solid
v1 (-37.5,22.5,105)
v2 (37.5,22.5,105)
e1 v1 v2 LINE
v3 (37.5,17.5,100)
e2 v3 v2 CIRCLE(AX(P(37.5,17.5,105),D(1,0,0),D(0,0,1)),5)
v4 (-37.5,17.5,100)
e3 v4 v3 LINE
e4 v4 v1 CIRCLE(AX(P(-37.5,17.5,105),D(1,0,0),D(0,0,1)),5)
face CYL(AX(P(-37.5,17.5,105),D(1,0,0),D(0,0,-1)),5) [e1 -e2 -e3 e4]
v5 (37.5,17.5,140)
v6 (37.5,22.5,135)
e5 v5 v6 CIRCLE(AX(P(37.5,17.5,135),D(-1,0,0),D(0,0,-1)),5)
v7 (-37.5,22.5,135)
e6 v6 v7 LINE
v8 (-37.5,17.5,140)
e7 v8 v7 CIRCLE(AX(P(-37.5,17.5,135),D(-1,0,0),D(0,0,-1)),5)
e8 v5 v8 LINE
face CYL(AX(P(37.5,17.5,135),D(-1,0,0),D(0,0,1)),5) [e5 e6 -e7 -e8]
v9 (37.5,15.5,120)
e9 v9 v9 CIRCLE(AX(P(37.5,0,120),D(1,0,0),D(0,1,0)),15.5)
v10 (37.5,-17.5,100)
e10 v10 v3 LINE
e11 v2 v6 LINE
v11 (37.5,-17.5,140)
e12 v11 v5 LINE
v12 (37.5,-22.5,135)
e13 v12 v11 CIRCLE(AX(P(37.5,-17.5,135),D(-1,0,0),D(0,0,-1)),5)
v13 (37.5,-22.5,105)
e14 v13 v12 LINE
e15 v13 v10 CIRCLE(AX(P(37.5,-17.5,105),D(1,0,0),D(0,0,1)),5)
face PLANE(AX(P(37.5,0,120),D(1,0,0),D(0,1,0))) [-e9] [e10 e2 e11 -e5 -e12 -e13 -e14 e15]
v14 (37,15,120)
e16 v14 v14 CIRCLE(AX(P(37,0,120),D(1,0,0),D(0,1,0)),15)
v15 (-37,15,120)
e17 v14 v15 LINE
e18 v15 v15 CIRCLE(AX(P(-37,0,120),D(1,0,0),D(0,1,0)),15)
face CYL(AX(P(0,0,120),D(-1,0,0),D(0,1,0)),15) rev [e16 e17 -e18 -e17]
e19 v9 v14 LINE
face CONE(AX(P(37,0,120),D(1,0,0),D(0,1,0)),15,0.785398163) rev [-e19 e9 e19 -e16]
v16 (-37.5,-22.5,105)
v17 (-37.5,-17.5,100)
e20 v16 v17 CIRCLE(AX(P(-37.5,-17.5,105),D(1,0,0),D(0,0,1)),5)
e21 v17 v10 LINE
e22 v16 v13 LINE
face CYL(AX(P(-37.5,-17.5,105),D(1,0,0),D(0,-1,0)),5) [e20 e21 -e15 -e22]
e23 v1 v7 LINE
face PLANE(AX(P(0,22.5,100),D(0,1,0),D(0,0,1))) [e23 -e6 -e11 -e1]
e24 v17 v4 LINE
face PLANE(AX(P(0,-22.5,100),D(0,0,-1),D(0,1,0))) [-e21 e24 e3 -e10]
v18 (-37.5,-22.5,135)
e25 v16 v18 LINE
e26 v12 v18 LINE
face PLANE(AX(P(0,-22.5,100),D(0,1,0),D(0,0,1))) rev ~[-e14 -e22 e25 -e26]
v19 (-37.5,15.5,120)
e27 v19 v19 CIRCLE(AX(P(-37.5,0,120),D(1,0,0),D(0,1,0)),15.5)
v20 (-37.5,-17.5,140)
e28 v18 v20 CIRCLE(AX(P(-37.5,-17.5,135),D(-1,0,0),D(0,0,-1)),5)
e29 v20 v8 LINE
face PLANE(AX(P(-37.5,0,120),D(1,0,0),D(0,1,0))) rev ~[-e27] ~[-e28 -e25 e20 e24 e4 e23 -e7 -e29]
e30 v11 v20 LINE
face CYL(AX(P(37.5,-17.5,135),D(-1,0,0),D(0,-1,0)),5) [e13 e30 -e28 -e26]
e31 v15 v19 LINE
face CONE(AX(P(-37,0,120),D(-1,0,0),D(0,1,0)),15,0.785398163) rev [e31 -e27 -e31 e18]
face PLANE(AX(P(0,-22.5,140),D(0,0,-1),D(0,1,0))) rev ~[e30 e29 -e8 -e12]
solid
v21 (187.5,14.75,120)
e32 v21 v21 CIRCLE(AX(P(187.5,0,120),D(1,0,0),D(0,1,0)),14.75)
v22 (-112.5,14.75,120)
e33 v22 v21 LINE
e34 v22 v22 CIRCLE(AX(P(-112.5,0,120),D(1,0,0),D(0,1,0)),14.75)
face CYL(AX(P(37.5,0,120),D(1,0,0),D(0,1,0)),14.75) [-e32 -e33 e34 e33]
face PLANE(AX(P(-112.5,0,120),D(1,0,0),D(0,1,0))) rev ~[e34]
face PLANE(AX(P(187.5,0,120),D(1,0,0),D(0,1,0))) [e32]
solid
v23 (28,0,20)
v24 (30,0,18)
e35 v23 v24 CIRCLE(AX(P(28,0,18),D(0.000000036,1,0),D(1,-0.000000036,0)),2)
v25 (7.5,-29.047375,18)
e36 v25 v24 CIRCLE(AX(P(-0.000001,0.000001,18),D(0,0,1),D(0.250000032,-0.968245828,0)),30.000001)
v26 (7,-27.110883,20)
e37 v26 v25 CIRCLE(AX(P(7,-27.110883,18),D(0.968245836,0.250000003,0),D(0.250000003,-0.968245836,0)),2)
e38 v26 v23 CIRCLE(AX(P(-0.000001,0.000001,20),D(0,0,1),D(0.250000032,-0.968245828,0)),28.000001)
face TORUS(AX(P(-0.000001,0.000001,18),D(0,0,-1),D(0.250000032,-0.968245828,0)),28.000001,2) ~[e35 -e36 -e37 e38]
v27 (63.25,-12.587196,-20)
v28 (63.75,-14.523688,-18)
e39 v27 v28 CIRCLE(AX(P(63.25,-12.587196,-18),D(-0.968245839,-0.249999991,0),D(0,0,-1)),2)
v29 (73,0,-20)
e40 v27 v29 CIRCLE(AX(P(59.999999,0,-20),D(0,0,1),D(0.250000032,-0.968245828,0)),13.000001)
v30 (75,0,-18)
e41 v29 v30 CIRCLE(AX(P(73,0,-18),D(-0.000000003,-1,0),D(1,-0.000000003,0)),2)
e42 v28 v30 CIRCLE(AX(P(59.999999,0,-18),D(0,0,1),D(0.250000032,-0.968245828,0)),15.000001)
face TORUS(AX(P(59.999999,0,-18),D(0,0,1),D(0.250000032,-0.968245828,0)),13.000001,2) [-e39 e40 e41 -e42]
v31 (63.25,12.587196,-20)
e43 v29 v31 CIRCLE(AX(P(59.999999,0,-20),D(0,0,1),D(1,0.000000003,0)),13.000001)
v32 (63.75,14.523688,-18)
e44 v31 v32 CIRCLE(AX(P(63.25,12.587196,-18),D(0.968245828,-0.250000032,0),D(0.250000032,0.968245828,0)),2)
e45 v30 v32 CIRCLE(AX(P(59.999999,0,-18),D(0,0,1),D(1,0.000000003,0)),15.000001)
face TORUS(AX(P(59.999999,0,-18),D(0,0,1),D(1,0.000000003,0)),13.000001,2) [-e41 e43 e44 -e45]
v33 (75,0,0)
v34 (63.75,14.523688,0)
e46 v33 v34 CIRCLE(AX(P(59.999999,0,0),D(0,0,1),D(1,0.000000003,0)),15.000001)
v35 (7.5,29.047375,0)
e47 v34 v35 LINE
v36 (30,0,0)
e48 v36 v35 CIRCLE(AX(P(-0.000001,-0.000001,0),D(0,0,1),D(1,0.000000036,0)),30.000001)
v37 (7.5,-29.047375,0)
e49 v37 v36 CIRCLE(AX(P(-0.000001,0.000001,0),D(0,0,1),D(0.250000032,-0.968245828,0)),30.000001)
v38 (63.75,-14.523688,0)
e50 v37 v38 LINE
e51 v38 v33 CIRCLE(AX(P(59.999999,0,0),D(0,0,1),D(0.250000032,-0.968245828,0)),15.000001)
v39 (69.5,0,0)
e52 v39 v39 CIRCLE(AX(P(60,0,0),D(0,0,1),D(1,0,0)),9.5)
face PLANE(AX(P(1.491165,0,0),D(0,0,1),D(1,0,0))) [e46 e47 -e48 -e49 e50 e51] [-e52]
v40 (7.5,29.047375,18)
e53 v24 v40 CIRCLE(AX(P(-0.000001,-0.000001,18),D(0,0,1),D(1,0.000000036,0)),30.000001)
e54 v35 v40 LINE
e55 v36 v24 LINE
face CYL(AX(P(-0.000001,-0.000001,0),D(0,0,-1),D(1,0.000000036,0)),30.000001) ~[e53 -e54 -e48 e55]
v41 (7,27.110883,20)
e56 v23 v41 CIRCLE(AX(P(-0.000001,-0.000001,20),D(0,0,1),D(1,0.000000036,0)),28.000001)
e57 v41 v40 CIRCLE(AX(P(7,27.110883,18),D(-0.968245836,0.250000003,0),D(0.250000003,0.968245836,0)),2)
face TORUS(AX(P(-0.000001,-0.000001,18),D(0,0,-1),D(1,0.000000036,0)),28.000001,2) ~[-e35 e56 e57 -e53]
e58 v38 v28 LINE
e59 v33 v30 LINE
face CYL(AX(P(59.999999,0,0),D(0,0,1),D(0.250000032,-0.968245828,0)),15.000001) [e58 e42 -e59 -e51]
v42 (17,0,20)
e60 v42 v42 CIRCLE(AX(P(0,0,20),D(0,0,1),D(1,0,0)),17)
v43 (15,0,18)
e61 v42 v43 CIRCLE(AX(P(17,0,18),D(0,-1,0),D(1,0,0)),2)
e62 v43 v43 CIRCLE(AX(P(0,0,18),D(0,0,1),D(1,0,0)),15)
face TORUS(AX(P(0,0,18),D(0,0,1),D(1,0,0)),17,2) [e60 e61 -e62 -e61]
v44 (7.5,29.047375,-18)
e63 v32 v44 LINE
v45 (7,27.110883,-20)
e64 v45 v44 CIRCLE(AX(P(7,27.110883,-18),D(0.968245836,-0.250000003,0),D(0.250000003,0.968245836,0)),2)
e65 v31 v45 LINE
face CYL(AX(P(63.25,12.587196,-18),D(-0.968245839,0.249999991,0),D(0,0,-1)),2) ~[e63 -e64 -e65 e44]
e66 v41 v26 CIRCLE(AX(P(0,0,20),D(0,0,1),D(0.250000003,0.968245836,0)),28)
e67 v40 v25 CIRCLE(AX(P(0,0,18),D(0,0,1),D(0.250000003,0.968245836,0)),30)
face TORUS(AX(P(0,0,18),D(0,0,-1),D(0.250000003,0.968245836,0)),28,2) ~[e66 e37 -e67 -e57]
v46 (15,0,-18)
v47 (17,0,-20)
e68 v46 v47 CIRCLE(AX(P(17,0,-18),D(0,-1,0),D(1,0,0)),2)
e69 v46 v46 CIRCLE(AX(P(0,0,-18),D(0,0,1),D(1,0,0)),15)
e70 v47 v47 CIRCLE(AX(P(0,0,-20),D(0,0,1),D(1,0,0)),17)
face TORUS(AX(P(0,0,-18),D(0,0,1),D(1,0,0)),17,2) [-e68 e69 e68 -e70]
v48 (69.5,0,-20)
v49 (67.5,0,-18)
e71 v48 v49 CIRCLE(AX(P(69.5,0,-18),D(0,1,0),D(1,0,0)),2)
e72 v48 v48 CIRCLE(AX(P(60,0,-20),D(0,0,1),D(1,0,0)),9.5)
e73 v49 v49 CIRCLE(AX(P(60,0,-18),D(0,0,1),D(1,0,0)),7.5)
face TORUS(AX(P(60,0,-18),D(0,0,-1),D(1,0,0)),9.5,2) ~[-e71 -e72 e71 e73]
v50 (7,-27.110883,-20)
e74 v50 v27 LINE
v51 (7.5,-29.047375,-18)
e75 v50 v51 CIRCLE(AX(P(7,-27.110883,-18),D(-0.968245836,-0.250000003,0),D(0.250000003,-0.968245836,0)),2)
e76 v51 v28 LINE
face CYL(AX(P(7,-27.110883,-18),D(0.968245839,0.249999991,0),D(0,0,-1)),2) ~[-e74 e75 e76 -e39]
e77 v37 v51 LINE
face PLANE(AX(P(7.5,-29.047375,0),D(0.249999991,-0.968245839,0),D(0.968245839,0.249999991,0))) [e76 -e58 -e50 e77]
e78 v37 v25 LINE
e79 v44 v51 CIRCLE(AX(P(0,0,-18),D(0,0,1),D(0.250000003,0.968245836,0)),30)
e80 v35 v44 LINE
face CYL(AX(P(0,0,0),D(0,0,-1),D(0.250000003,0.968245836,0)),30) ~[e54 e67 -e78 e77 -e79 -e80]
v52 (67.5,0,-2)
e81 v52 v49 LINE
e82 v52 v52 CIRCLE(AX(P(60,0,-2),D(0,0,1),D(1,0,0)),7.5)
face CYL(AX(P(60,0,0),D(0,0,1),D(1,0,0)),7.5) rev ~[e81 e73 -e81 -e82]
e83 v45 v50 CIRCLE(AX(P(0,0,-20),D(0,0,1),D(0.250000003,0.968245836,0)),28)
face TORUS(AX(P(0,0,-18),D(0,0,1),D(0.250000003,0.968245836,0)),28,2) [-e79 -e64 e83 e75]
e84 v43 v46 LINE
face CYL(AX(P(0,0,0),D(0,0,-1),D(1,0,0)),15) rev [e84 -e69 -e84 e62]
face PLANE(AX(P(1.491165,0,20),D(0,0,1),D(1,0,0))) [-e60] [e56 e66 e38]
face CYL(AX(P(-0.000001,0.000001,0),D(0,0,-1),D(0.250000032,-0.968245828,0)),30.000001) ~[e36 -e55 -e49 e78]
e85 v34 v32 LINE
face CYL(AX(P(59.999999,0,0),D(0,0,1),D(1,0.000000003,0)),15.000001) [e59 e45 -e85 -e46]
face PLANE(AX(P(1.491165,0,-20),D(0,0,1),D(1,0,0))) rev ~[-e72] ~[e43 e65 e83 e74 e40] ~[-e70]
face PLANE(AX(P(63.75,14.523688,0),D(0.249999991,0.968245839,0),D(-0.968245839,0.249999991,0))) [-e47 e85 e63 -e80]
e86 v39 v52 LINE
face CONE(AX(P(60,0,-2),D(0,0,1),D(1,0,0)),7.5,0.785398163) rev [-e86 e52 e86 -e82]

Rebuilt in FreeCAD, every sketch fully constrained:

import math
import FreeCAD as App
import Part
import Sketcher

V = App.Vector


def edges_at(feature, points):
    """Names of the edges that pass closest to the given points."""
    edges = feature.Shape.Edges
    near = lambda p: min(range(len(edges)), key=lambda i: edges[i].distToShape(Part.Vertex(*p))[0])
    return sorted({f"Edge{near(p) + 1}" for p in points})


def add_polygon(sketch, points):
    """Adds a closed chain of lines whose ends are joined by coincident constraints."""
    first, n = sketch.GeometryCount, len(points)
    for a, b in zip(points, points[1:] + points[:1]):
        sketch.addGeometry(Part.LineSegment(App.Vector(*a, 0), App.Vector(*b, 0)), False)
    for i in range(n):
        sketch.addConstraint(Sketcher.Constraint("Coincident", first + i, 2, first + (i + 1) % n, 1))

doc = App.newDocument("Part")
body = doc.addObject("PartDesign::Body", "Body")

sketch1 = body.newObject("Sketcher::SketchObject", "Sketch")
sketch1.AttachmentSupport = (doc.getObject("XY_Plane"), [""])
sketch1.MapMode = "FlatFace"
sketch1.addGeometry([
    Part.ArcOfCircle(Part.Circle(V(0, 0, 0), V(0, 0, 1), 30), math.radians(76), math.radians(284)),
    Part.LineSegment(V(8, -29, 0), V(64, -15, 0)),
    Part.ArcOfCircle(Part.Circle(V(60, 0, 0), V(0, 0, 1), 15), math.radians(-76), math.radians(0)),
    Part.ArcOfCircle(Part.Circle(V(60, 0, 0), V(0, 0, 1), 15), math.radians(0), math.radians(76)),
    Part.LineSegment(V(64, 15, 0), V(8, 29, 0)),
    Part.Circle(V(0, 0, 0), V(0, 0, 1), 15),
    Part.Circle(V(60, 0, 0), V(0, 0, 1), 8),
], False)
sketch1.addConstraint([
    Sketcher.Constraint("Tangent", 0, 2, 1, 1),
    Sketcher.Constraint("Tangent", 1, 2, 2, 1),
    Sketcher.Constraint("Tangent", 2, 2, 3, 1),
    Sketcher.Constraint("Tangent", 3, 2, 4, 1),
    Sketcher.Constraint("Tangent", 4, 2, 0, 1),
    Sketcher.Constraint("Coincident", 0, 3, -1, 1),
    Sketcher.Constraint("Coincident", 5, 3, -1, 1),
    Sketcher.Constraint("Coincident", 6, 3, 2, 3),
    Sketcher.Constraint("Equal", 2, 3),
    Sketcher.Constraint("Equal", 3, 5),
    Sketcher.Constraint("PointOnObject", 2, 3, -1),
    Sketcher.Constraint("PointOnObject", 2, 2, -1),
    Sketcher.Constraint("Diameter", 5, 30.0),
    Sketcher.Constraint("Diameter", 6, 15.0),
    Sketcher.Constraint("Radius", 0, 30.0),
    Sketcher.Constraint("DistanceX", -1, 1, 2, 3, 59.999999),
])
pad1 = body.newObject("PartDesign::Pad", "Pad")
pad1.Profile = sketch1
pad1.Length = 20
pad1.Reversed = True

sketch2 = body.newObject("Sketcher::SketchObject", "Sketch001")
sketch2.AttachmentSupport = (doc.getObject("XY_Plane"), [""])
sketch2.MapMode = "FlatFace"
sketch2.addGeometry([
    Part.ArcOfCircle(Part.Circle(V(0, 0, 0), V(0, 0, 1), 30), math.radians(-76), math.radians(0)),
    Part.ArcOfCircle(Part.Circle(V(0, 0, 0), V(0, 0, 1), 30), math.radians(0), math.radians(76)),
    Part.ArcOfCircle(Part.Circle(V(0, 0, 0), V(0, 0, 1), 30), math.radians(76), math.radians(284)),
    Part.Circle(V(0, 0, 0), V(0, 0, 1), 15),
], False)
sketch2.addConstraint([
    Sketcher.Constraint("Tangent", 0, 2, 1, 1),
    Sketcher.Constraint("Tangent", 1, 2, 2, 1),
    Sketcher.Constraint("Tangent", 2, 2, 0, 1),
    Sketcher.Constraint("Coincident", 0, 3, -1, 1),
    Sketcher.Constraint("Coincident", 3, 3, -1, 1),
    Sketcher.Constraint("PointOnObject", 0, 2, -1),
    Sketcher.Constraint("Vertical", 1, 2, 2, 2),
    Sketcher.Constraint("Diameter", 3, 30.0),
    Sketcher.Constraint("Radius", 0, 30.000001),
    Sketcher.Constraint("DistanceX", -1, 1, 1, 2, 7.5),
])
pad2 = body.newObject("PartDesign::Pad", "Pad001")
pad2.Profile = sketch2
pad2.Length = 20
doc.recompute()

fillet = body.newObject("PartDesign::Fillet", "Fillet")
fillet.Base = (pad2, edges_at(pad2, [
    (-30, 0, 20),
    (-15, 0, 20),
    (-30, 0, -20),
    (35.625, -21.786, -20),
    (71.859, 9.186, -20),
    (35.625, 21.786, -20),
    (-15, 0, -20),
    (52.5, 0, -20),
]))
fillet.Radius = 2
doc.recompute()

chamfer = body.newObject("PartDesign::Chamfer", "Chamfer")
chamfer.Base = (fillet, edges_at(fillet, [(52.5, 0, 0)]))
chamfer.Size = 2
body2 = doc.addObject("PartDesign::Body", "Body001")

sketch3 = body2.newObject("Sketcher::SketchObject", "Sketch002")
sketch3.AttachmentSupport = (doc.getObject("YZ_Plane001"), [""])
sketch3.MapMode = "FlatFace"
add_polygon(sketch3, [(-22, 140), (-22, 100), (22, 100), (22, 140)])
sketch3.addGeometry(Part.Circle(V(0, 120, 0), V(0, 0, 1), 15), False)
sketch3.addConstraint([
    Sketcher.Constraint("Vertical", 0),
    Sketcher.Constraint("Horizontal", 1),
    Sketcher.Constraint("Vertical", 2),
    Sketcher.Constraint("Horizontal", 3),
    Sketcher.Constraint("PointOnObject", 4, 3, -2),
    Sketcher.Constraint("Diameter", 4, 30.0),
    Sketcher.Constraint("DistanceX", 1, 1, 1, 2, 45.0),
    Sketcher.Constraint("DistanceY", 0, 2, 0, 1, 40.0),
    Sketcher.Constraint("DistanceY", -1, 1, 4, 3, 120.0),
    Sketcher.Constraint("DistanceY", -1, 1, 0, 2, 100.0),
    Sketcher.Constraint("DistanceX", 0, 2, -1, 1, 22.5),
])
pad3 = body2.newObject("PartDesign::Pad", "Pad002")
pad3.Profile = sketch3
pad3.Length = 75
pad3.Midplane = True
doc.recompute()

chamfer2 = body2.newObject("PartDesign::Chamfer", "Chamfer001")
chamfer2.Base = (pad3, edges_at(pad3, [(-37.5, -15, 120), (37.5, -15, 120)]))
chamfer2.Size = 0.5
doc.recompute()

fillet2 = body2.newObject("PartDesign::Fillet", "Fillet001")
fillet2.Base = (chamfer2, edges_at(chamfer2, [
    (0, 22.5, 140),
    (0, -22.5, 140),
    (0, 22.5, 100),
    (0, -22.5, 100),
]))
fillet2.Radius = 5
body3 = doc.addObject("PartDesign::Body", "Body002")

sketch4 = body3.newObject("Sketcher::SketchObject", "Sketch003")
sketch4.AttachmentSupport = (doc.getObject("YZ_Plane002"), [""])
sketch4.MapMode = "FlatFace"
sketch4.AttachmentOffset = App.Placement(V(0, 0, 37.5), App.Rotation())
sketch4.addGeometry(Part.Circle(V(0, 120, 0), V(0, 0, 1), 15), False)
sketch4.addConstraint([
    Sketcher.Constraint("PointOnObject", 0, 3, -2),
    Sketcher.Constraint("Diameter", 0, 29.5),
    Sketcher.Constraint("DistanceY", -1, 1, 0, 3, 120.0),
])
pad4 = body3.newObject("PartDesign::Pad", "Pad003")
pad4.Profile = sketch4
pad4.Length = 300
pad4.Midplane = True

doc.recompute()
